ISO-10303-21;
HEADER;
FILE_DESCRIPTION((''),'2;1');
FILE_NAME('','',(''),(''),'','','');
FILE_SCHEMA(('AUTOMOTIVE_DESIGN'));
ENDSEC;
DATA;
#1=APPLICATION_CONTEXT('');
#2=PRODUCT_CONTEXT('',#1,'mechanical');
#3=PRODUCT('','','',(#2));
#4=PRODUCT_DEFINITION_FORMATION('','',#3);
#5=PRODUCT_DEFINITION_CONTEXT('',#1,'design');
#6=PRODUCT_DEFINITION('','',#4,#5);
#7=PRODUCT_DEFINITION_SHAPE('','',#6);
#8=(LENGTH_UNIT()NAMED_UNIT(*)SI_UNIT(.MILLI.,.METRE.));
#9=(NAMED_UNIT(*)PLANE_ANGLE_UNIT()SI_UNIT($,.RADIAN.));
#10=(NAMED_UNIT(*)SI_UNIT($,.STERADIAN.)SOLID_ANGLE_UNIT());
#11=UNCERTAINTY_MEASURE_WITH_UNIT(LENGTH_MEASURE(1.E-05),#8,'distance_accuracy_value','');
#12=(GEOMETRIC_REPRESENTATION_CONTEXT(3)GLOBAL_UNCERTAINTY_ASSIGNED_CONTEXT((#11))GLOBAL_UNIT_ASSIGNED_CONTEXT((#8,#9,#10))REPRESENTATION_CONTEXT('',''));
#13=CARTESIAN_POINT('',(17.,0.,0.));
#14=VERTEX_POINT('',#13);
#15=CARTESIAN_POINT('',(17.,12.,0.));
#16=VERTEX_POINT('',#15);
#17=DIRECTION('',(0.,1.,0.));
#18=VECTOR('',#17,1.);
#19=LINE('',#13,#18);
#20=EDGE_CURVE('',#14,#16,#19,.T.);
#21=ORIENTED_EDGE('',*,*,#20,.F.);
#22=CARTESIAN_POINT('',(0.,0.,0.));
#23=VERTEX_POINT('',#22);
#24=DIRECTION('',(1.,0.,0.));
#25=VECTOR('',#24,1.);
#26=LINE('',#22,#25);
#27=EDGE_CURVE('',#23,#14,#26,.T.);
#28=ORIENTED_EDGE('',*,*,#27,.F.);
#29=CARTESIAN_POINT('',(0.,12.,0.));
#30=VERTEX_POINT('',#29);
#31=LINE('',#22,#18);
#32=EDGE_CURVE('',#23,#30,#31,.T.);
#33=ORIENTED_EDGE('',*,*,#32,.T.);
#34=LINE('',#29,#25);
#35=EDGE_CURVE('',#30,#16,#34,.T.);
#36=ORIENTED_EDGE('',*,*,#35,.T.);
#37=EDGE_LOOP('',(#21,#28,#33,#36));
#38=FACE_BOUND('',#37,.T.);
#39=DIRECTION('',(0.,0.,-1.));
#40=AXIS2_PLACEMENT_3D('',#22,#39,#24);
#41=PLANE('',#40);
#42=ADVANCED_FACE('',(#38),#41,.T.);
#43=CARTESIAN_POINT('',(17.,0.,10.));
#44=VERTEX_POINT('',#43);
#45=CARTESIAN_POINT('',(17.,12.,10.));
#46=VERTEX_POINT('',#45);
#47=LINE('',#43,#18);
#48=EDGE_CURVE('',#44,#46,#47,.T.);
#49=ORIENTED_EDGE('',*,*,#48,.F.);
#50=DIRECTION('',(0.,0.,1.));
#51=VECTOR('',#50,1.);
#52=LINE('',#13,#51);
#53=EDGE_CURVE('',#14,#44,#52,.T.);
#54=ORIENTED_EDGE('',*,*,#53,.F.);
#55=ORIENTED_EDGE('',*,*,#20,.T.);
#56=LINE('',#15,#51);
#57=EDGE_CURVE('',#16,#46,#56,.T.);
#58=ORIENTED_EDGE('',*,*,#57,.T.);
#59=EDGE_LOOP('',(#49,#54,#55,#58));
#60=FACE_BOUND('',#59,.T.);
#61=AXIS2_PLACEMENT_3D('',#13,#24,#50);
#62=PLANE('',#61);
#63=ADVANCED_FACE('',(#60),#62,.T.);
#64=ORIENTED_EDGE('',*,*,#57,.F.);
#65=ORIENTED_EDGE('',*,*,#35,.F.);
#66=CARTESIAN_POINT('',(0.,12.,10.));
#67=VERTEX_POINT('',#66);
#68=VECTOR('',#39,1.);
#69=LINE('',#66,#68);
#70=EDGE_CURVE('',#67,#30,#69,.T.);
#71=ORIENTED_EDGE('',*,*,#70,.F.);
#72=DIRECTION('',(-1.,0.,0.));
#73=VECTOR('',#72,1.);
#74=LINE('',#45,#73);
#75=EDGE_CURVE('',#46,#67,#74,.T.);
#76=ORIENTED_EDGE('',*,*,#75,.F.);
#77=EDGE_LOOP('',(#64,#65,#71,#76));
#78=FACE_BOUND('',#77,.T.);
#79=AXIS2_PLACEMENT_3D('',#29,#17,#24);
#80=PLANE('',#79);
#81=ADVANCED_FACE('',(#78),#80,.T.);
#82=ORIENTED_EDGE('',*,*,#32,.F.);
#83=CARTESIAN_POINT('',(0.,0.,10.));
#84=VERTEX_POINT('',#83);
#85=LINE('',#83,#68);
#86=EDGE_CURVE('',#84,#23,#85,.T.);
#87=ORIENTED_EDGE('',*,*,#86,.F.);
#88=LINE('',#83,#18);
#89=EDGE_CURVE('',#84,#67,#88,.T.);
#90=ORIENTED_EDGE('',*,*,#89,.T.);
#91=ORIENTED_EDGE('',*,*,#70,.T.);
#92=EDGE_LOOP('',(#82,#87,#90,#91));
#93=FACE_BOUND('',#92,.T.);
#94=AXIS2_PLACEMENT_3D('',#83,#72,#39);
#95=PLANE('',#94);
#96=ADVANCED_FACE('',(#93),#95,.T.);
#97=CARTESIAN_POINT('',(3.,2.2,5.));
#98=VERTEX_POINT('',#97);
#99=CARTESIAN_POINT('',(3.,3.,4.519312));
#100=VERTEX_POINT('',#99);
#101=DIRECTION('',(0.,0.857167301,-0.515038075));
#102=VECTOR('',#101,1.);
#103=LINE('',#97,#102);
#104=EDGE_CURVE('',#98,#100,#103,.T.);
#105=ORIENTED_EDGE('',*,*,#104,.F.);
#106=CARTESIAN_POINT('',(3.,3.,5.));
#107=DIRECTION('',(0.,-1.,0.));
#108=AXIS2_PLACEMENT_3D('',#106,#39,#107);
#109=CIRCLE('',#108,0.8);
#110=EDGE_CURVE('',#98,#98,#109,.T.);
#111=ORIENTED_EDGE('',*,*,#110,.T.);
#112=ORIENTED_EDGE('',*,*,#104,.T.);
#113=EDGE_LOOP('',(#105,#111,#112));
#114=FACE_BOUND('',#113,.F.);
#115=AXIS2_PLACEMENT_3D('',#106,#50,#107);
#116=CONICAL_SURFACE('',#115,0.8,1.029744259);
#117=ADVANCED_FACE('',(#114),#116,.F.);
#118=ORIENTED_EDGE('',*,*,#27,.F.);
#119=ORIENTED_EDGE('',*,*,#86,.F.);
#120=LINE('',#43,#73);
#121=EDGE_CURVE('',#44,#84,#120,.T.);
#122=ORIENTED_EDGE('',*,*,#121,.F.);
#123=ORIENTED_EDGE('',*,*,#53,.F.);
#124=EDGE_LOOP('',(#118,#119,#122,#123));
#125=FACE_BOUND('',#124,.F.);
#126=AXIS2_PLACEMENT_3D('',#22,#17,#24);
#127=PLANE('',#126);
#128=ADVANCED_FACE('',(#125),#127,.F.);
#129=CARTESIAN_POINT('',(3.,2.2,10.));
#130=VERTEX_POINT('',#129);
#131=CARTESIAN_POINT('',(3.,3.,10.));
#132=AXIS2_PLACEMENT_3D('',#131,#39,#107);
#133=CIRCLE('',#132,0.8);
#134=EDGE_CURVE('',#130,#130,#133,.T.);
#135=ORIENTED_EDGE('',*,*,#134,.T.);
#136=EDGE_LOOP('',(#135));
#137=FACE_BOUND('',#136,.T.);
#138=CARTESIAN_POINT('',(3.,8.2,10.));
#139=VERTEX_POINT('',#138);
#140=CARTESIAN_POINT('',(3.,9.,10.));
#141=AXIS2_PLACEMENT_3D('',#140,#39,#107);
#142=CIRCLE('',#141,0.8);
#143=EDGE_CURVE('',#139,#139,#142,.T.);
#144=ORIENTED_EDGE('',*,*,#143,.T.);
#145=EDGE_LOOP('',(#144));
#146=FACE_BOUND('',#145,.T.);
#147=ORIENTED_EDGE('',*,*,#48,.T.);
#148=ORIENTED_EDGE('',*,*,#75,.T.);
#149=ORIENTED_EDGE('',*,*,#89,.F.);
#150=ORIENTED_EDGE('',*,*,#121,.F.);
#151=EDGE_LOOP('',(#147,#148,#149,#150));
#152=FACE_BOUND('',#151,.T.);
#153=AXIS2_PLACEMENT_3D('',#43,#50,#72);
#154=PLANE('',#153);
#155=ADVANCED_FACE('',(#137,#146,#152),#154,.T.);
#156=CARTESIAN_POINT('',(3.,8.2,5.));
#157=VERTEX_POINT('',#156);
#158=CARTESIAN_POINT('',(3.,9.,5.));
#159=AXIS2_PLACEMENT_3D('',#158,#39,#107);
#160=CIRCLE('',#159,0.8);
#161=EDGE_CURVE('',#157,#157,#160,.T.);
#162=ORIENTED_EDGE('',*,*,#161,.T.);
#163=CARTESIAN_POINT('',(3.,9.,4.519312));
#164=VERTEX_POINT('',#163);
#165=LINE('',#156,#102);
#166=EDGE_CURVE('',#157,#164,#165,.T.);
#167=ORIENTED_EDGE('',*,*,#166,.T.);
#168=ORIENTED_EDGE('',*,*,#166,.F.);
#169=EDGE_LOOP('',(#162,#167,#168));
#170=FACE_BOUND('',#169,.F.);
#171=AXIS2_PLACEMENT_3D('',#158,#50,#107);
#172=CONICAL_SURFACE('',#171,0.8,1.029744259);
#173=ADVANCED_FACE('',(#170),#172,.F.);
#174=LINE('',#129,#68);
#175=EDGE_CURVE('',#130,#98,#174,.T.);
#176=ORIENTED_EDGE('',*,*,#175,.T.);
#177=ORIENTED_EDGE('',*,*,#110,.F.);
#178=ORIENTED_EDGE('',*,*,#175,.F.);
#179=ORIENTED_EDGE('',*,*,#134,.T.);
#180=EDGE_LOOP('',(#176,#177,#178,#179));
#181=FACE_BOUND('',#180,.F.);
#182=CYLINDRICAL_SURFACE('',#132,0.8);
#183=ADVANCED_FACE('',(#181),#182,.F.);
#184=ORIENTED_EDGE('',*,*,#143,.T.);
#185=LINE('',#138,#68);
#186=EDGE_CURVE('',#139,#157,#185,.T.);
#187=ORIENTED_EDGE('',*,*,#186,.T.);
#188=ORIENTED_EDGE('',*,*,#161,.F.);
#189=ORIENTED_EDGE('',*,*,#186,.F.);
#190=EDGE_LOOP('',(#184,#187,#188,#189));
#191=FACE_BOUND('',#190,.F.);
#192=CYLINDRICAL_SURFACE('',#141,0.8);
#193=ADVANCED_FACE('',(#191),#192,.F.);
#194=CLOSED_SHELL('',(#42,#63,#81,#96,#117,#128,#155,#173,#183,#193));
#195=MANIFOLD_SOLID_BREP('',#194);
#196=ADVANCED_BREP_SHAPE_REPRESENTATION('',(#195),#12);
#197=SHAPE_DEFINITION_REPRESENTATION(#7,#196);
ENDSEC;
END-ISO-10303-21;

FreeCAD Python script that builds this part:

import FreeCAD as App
import Part
import Sketcher
Q = App.Units.Quantity

doc = App.newDocument("Part")
params = doc.addObject("Spreadsheet::Sheet", "Params")
for row, (alias, value) in enumerate([
    ("sketch1_width", "17 mm"),
    ("sketch1_height", "10 mm"),
    ("pad1_length", "12 mm"),
    ("sketch2_diameter", "1.6 mm"),
    ("hole_diameter", "1.6 mm"),
    ("hole_depth", "5 mm"),
    ("sketch3_diameter", "1.6 mm"),
    ("hole2_diameter", "1.6 mm"),
    ("hole2_depth", "5 mm"),
], start=1):
    params.set(f"A{row}", alias)
    params.set(f"B{row}", "=" + value)
    params.setAlias(f"B{row}", alias)

body = doc.addObject("PartDesign::Body", "Body")

sketch1 = body.newObject("Sketcher::SketchObject", "Sketch")
sketch1.AttachmentSupport = (doc.getObject("XZ_Plane"), [""])
sketch1.MapMode = "FlatFace"
sketch1.addGeometry(Part.LineSegment(App.Vector(17, 0, 0), App.Vector(0, 0, 0)), False)
sketch1.addGeometry(Part.LineSegment(App.Vector(0, 0, 0), App.Vector(0, 10, 0)), False)
sketch1.addGeometry(Part.LineSegment(App.Vector(0, 10, 0), App.Vector(17, 10, 0)), False)
sketch1.addGeometry(Part.LineSegment(App.Vector(17, 10, 0), App.Vector(17, 0, 0)), False)
sketch1.addConstraint(Sketcher.Constraint("Coincident", 0, 2, 1, 1))
sketch1.addConstraint(Sketcher.Constraint("Coincident", 1, 2, 2, 1))
sketch1.addConstraint(Sketcher.Constraint("Coincident", 2, 2, 3, 1))
sketch1.addConstraint(Sketcher.Constraint("Coincident", 3, 2, 0, 1))
sketch1.addConstraint(Sketcher.Constraint("Horizontal", 0))
sketch1.addConstraint(Sketcher.Constraint("Vertical", 1))
sketch1.addConstraint(Sketcher.Constraint("Horizontal", 2))
sketch1.addConstraint(Sketcher.Constraint("Vertical", 3))
sketch1.addConstraint(Sketcher.Constraint("Coincident", 0, 2, -1, 1))
sketch1.addConstraint(Sketcher.Constraint("DistanceX", 0, 2, 0, 1, Q("17 mm")))
sketch1.addConstraint(Sketcher.Constraint("DistanceY", 1, 1, 1, 2, Q("10 mm")))
sketch1.setExpression("Constraints[9]", "Params.sketch1_width")
sketch1.setExpression("Constraints[10]", "Params.sketch1_height")
pad1 = body.newObject("PartDesign::Pad", "Pad")
pad1.Profile = sketch1
pad1.setExpression("Length", "Params.pad1_length")
pad1.Reversed = True

sketch2 = body.newObject("Sketcher::SketchObject", "Sketch001")
sketch2.AttachmentSupport = (doc.getObject("XY_Plane"), [""])
sketch2.MapMode = "FlatFace"
sketch2.AttachmentOffset = App.Placement(App.Vector(0, 0, 10), App.Rotation())
sketch2.addGeometry(Part.Circle(App.Vector(3, 3, 0), App.Vector(0, 0, 1), 0.8), False)
sketch2.addConstraint(Sketcher.Constraint("Diameter", 0, Q("1.6 mm")))
sketch2.addConstraint(Sketcher.Constraint("DistanceX", -1, 1, 0, 3, Q("3 mm")))
sketch2.addConstraint(Sketcher.Constraint("DistanceY", -1, 1, 0, 3, Q("3 mm")))
sketch2.setExpression("Constraints[0]", "Params.sketch2_diameter")
doc.recompute()
hole = body.newObject("PartDesign::Hole", "Hole")
hole.Profile = sketch2
hole.ThreadType = "None"
hole.setExpression("Diameter", "Params.hole_diameter")
hole.DepthType = "Dimension"
hole.setExpression("Depth", "Params.hole_depth")
hole.DrillPoint = "Angled"
hole.DrillPointAngle = 118

sketch3 = body.newObject("Sketcher::SketchObject", "Sketch002")
sketch3.AttachmentSupport = (doc.getObject("XY_Plane"), [""])
sketch3.MapMode = "FlatFace"
sketch3.AttachmentOffset = App.Placement(App.Vector(0, 0, 10), App.Rotation())
sketch3.addGeometry(Part.Circle(App.Vector(3, 9, 0), App.Vector(0, 0, 1), 0.8), False)
sketch3.addConstraint(Sketcher.Constraint("Diameter", 0, Q("1.6 mm")))
sketch3.addConstraint(Sketcher.Constraint("DistanceX", -1, 1, 0, 3, Q("3 mm")))
sketch3.addConstraint(Sketcher.Constraint("DistanceY", -1, 1, 0, 3, Q("9 mm")))
sketch3.setExpression("Constraints[0]", "Params.sketch3_diameter")
doc.recompute()
hole2 = body.newObject("PartDesign::Hole", "Hole001")
hole2.Profile = sketch3
hole2.ThreadType = "None"
hole2.setExpression("Diameter", "Params.hole2_diameter")
hole2.DepthType = "Dimension"
hole2.setExpression("Depth", "Params.hole2_depth")
hole2.DrillPoint = "Angled"
hole2.DrillPointAngle = 118

doc.recompute()
